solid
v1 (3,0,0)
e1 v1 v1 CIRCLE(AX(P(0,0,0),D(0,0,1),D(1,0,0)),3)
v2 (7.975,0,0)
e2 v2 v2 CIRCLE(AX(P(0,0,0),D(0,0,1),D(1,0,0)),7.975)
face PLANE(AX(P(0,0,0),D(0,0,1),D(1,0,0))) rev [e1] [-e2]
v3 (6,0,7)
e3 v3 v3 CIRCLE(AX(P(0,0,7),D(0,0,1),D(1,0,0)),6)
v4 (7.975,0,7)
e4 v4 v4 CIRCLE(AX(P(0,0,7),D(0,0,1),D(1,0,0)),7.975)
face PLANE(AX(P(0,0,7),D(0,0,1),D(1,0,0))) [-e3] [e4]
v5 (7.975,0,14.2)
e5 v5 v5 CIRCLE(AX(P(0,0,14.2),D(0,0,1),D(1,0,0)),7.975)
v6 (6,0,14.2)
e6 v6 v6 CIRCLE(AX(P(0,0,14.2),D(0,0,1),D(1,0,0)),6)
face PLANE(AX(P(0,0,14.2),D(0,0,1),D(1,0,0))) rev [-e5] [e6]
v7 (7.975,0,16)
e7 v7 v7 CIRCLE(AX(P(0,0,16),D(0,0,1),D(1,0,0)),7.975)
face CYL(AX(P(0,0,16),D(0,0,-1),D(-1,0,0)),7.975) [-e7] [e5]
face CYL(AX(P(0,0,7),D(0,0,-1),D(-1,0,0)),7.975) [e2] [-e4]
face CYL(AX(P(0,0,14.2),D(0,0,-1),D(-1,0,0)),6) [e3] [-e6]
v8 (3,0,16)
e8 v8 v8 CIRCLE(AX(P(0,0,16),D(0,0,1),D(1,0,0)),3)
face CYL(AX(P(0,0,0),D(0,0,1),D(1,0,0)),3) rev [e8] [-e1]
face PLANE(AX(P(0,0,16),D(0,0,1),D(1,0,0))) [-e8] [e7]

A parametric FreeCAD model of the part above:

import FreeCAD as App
import Part
import Sketcher

V = App.Vector

doc = App.newDocument("Part")
params = doc.addObject("Spreadsheet::Sheet", "Params")
for row, (alias, value) in enumerate([
    ("sketch1_diameter", "15.95 mm"),
    ("pad1_length", "7 mm"),
    ("sketch2_diameter", "12 mm"),
    ("pad2_length", "7.2 mm"),
    ("sketch3_diameter", "15.95 mm"),
    ("pad3_length", "1.8 mm"),
    ("sketch4_diameter", "6 mm"),
], start=1):
    params.set(f"A{row}", alias)
    params.set(f"B{row}", "=" + value)
    params.setAlias(f"B{row}", alias)

body = doc.addObject("PartDesign::Body", "Body")

# Sketch on XY plane
sketch1 = body.newObject("Sketcher::SketchObject", "Sketch")
sketch1.AttachmentSupport = (doc.getObject("XY_Plane"), [""])
sketch1.MapMode = "FlatFace"
sketch1.addGeometry(Part.Circle(V(0, 0, 0), V(0, 0, 1), 8), False)
sketch1.addConstraint([
    Sketcher.Constraint("Coincident", 0, 3, -1, 1),
    Sketcher.Constraint("Diameter", 0, 15.95),
])
sketch1.setExpression("Constraints[1]", "Params.sketch1_diameter")
pad1 = body.newObject("PartDesign::Pad", "Pad")
pad1.Profile = sketch1
pad1.setExpression("Length", "Params.pad1_length")

# Sketch on XY plane
sketch2 = body.newObject("Sketcher::SketchObject", "Sketch001")
sketch2.AttachmentSupport = (doc.getObject("XY_Plane"), [""])
sketch2.MapMode = "FlatFace"
sketch2.AttachmentOffset = App.Placement(V(0, 0, 7), App.Rotation())
sketch2.addGeometry(Part.Circle(V(0, 0, 0), V(0, 0, 1), 6), False)
sketch2.addConstraint([
    Sketcher.Constraint("Coincident", 0, 3, -1, 1),
    Sketcher.Constraint("Diameter", 0, 12.0),
])
sketch2.setExpression("Constraints[1]", "Params.sketch2_diameter")
pad2 = body.newObject("PartDesign::Pad", "Pad001")
pad2.Profile = sketch2
pad2.setExpression("Length", "Params.pad2_length")

# Sketch on XY plane
sketch3 = body.newObject("Sketcher::SketchObject", "Sketch002")
sketch3.AttachmentSupport = (doc.getObject("XY_Plane"), [""])
sketch3.MapMode = "FlatFace"
sketch3.AttachmentOffset = App.Placement(V(0, 0, 14.2), App.Rotation())
sketch3.addGeometry(Part.Circle(V(0, 0, 0), V(0, 0, 1), 8), False)
sketch3.addConstraint([
    Sketcher.Constraint("Coincident", 0, 3, -1, 1),
    Sketcher.Constraint("Diameter", 0, 15.95),
])
sketch3.setExpression("Constraints[1]", "Params.sketch3_diameter")
pad3 = body.newObject("PartDesign::Pad", "Pad002")
pad3.Profile = sketch3
pad3.setExpression("Length", "Params.pad3_length")

# Sketch on XY plane
sketch4 = body.newObject("Sketcher::SketchObject", "Sketch003")
sketch4.AttachmentSupport = (doc.getObject("XY_Plane"), [""])
sketch4.MapMode = "FlatFace"
sketch4.AttachmentOffset = App.Placement(V(0, 0, 16), App.Rotation())
sketch4.addGeometry(Part.Circle(V(0, 0, 0), V(0, 0, 1), 3), False)
sketch4.addConstraint([
    Sketcher.Constraint("Coincident", 0, 3, -1, 1),
    Sketcher.Constraint("Diameter", 0, 6.0),
])
sketch4.setExpression("Constraints[1]", "Params.sketch4_diameter")
pocket1 = body.newObject("PartDesign::Pocket", "Pocket")
pocket1.Profile = sketch4
pocket1.Type = "ThroughAll"

doc.recompute()
